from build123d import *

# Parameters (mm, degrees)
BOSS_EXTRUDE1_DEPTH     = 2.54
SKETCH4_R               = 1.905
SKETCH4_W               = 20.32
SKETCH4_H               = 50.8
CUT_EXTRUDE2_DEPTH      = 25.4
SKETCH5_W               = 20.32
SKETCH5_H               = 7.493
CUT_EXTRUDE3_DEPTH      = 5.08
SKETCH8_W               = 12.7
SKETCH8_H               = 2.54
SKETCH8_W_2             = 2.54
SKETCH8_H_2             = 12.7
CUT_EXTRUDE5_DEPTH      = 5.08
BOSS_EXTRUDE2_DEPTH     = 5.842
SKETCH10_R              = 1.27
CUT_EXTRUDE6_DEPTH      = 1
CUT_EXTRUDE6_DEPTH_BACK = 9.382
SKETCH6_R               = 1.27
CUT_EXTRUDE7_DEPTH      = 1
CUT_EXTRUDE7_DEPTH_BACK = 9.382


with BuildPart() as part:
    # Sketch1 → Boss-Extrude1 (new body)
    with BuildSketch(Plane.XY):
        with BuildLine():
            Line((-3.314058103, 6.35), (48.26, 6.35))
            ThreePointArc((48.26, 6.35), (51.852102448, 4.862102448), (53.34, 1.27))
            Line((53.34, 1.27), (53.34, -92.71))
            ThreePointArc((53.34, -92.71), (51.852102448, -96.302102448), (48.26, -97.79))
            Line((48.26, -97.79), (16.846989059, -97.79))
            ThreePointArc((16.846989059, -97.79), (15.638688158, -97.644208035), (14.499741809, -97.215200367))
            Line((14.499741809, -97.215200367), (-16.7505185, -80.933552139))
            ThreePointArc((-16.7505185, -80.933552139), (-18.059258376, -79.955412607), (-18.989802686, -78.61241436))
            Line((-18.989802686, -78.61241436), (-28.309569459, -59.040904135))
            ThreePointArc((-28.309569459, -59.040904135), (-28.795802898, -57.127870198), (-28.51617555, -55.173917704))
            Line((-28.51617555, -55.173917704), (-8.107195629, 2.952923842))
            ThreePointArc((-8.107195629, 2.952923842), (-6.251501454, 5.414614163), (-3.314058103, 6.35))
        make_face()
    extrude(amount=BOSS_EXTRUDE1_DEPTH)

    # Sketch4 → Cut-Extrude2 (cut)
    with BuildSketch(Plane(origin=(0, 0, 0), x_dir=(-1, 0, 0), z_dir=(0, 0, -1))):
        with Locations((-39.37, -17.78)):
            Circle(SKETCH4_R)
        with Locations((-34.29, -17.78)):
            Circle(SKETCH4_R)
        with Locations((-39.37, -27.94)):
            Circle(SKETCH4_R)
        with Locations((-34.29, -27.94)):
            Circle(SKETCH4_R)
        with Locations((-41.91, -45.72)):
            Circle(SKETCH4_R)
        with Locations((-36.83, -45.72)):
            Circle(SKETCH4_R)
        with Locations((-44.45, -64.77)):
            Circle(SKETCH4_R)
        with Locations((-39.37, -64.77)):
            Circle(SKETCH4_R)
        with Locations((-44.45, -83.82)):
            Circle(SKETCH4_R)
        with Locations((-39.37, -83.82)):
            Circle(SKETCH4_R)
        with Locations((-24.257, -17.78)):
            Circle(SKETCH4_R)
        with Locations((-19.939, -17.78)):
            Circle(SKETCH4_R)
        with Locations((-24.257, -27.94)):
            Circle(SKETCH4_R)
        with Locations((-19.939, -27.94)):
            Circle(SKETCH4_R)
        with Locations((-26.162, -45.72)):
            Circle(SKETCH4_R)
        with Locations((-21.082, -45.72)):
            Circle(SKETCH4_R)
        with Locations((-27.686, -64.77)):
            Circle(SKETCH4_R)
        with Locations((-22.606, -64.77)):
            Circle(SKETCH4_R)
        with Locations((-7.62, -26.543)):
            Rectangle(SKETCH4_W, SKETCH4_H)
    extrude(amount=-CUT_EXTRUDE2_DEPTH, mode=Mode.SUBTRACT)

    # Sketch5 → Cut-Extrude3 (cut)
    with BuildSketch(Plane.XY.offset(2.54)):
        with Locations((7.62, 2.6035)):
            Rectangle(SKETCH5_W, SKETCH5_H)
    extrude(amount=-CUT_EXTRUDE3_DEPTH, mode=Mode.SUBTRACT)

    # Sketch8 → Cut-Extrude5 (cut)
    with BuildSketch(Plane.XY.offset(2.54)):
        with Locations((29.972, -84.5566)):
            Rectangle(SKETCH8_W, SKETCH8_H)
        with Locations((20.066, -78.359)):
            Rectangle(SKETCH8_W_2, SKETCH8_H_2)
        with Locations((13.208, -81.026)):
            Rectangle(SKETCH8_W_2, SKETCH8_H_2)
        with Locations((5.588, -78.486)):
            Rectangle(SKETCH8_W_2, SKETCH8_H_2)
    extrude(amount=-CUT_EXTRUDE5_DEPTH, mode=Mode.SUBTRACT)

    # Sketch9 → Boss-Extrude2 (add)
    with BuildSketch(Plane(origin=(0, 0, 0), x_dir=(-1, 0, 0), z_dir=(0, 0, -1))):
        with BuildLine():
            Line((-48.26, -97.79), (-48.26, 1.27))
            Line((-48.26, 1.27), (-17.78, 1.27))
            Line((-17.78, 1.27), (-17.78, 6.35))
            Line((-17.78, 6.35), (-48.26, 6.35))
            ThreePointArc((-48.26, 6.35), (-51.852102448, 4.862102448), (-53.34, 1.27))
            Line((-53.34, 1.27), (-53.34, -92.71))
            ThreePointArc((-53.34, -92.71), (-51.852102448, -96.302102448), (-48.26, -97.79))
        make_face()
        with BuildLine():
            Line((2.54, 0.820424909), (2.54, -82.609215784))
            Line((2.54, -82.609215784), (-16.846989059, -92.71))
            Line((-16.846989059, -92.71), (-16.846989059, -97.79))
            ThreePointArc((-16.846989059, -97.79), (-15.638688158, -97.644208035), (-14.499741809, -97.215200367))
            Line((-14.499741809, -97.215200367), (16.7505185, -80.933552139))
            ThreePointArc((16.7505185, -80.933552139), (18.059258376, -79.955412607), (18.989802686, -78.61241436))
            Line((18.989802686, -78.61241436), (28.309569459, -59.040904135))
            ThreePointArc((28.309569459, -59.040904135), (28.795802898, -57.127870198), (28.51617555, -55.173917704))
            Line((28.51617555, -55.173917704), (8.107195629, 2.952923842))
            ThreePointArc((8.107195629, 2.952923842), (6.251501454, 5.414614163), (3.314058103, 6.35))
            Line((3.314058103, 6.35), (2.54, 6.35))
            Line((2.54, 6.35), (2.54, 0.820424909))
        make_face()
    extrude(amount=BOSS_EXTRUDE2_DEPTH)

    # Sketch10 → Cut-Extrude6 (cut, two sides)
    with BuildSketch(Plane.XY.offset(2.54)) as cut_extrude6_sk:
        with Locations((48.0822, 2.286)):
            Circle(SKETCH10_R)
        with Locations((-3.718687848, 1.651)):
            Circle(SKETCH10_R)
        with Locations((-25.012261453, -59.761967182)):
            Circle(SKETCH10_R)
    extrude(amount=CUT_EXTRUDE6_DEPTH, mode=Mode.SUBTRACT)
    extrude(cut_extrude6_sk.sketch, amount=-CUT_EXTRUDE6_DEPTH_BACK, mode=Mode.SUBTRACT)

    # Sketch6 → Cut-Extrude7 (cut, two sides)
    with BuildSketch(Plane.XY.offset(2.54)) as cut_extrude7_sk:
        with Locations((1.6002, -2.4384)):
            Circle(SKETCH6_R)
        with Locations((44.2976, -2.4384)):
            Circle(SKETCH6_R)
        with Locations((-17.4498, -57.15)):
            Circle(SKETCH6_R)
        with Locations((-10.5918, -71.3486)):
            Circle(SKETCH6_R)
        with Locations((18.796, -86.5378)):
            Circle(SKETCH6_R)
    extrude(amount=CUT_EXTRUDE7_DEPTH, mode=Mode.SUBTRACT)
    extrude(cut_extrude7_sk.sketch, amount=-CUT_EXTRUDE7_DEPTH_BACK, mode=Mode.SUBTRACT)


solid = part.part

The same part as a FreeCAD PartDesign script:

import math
import FreeCAD as App
import Part
import Sketcher
from FreeCAD import Vector
Q = App.Units.Quantity

doc = App.newDocument("Part")
body = doc.addObject("PartDesign::Body", "Body")

sketch1 = body.newObject("Sketcher::SketchObject", "Sketch")
sketch1.AttachmentSupport = (doc.getObject("XY_Plane"), [""])
sketch1.MapMode = "FlatFace"
sketch1.addGeometry(Part.LineSegment(Vector(48.26, 6.35, 0), Vector(-3.314058, 6.35, 0)), False)
sketch1.addGeometry(Part.ArcOfCircle(Part.Circle(Vector(-3.314058, 1.27, 0), Vector(0, 0, 1), 5.08), math.radians(90), math.radians(160.653259)), False)
sketch1.addGeometry(Part.LineSegment(Vector(-8.107196, 2.952924, 0), Vector(-28.516176, -55.173918, 0)), False)
sketch1.addGeometry(Part.ArcOfCircle(Part.Circle(Vector(-23.723038, -56.856842, 0), Vector(0, 0, 1), 5.08), math.radians(160.653259), math.radians(205.463345)), False)
sketch1.addGeometry(Part.LineSegment(Vector(-28.309569, -59.040904, 0), Vector(-18.989803, -78.612414, 0)), False)
sketch1.addGeometry(Part.ArcOfCircle(Part.Circle(Vector(-14.403271, -76.428352, 0), Vector(0, 0, 1), 5.08), math.radians(-154.536655), math.radians(-117.519892)), False)
sketch1.addGeometry(Part.LineSegment(Vector(-16.750518, -80.933552, 0), Vector(14.499742, -97.2152, 0)), False)
sketch1.addGeometry(Part.ArcOfCircle(Part.Circle(Vector(16.846989, -92.71, 0), Vector(0, 0, 1), 5.08), math.radians(-117.519892), math.radians(-90)), False)
sketch1.addGeometry(Part.LineSegment(Vector(16.846989, -97.79, 0), Vector(48.26, -97.79, 0)), False)
sketch1.addGeometry(Part.ArcOfCircle(Part.Circle(Vector(48.26, -92.71, 0), Vector(0, 0, 1), 5.08), math.radians(-90), math.radians(0)), False)
sketch1.addGeometry(Part.LineSegment(Vector(53.34, -92.71, 0), Vector(53.34, 1.27, 0)), False)
sketch1.addGeometry(Part.ArcOfCircle(Part.Circle(Vector(48.26, 1.27, 0), Vector(0, 0, 1), 5.08), math.radians(0), math.radians(90)), False)
sketch1.addConstraint(Sketcher.Constraint("Tangent", 0, 2, 1, 1))
sketch1.addConstraint(Sketcher.Constraint("Tangent", 1, 2, 2, 1))
sketch1.addConstraint(Sketcher.Constraint("Tangent", 2, 2, 3, 1))
sketch1.addConstraint(Sketcher.Constraint("Tangent", 3, 2, 4, 1))
sketch1.addConstraint(Sketcher.Constraint("Tangent", 4, 2, 5, 1))
sketch1.addConstraint(Sketcher.Constraint("Tangent", 5, 2, 6, 1))
sketch1.addConstraint(Sketcher.Constraint("Tangent", 6, 2, 7, 1))
sketch1.addConstraint(Sketcher.Constraint("Tangent", 7, 2, 8, 1))
sketch1.addConstraint(Sketcher.Constraint("Tangent", 8, 2, 9, 1))
sketch1.addConstraint(Sketcher.Constraint("Tangent", 9, 2, 10, 1))
sketch1.addConstraint(Sketcher.Constraint("Tangent", 10, 2, 11, 1))
sketch1.addConstraint(Sketcher.Constraint("Tangent", 11, 2, 0, 1))
sketch1.addConstraint(Sketcher.Constraint("Horizontal", 0))
sketch1.addConstraint(Sketcher.Constraint("Horizontal", 8))
sketch1.addConstraint(Sketcher.Constraint("Vertical", 10))
sketch1.addConstraint(Sketcher.Constraint("Equal", 1, 3))
sketch1.addConstraint(Sketcher.Constraint("Equal", 3, 5))
sketch1.addConstraint(Sketcher.Constraint("Equal", 5, 7))
sketch1.addConstraint(Sketcher.Constraint("Equal", 7, 9))
sketch1.addConstraint(Sketcher.Constraint("Equal", 9, 11))
sketch1.addConstraint(Sketcher.Constraint("Radius", 1, Q("0.2 in")))
sketch1.addConstraint(Sketcher.Constraint("DistanceY", 10, 1, 10, 2, Q("3.7 in")))
sketch1.addConstraint(Sketcher.Constraint("DistanceX", -1, 1, 9, 3, Q("1.9 in")))
sketch1.addConstraint(Sketcher.Constraint("DistanceY", -1, 1, 1, 3, Q("0.05 in")))
sketch1.addConstraint(Sketcher.Constraint("DistanceX", 0, 2, 0, 1, 51.574058))
sketch1.addConstraint(Sketcher.Constraint("DistanceX", 8, 1, 8, 2, 31.413011))
sketch1.addConstraint(Sketcher.Constraint("DistanceY", 6, 2, -1, 1, 97.2152))
sketch1.addConstraint(Sketcher.Constraint("DistanceX", 3, 2, 5, 3, 13.906298))
sketch1.addConstraint(Sketcher.Constraint("Distance", 2, 61.60565))
sketch1.addConstraint(Sketcher.Constraint("Distance", 6, 35.23735))
pad1 = body.newObject("PartDesign::Pad", "Pad")
pad1.Profile = sketch1
pad1.Length = Q("0.1 in")

sketch2 = body.newObject("Sketcher::SketchObject", "Sketch001")
sketch2.AttachmentSupport = (doc.getObject("XY_Plane"), [""])
sketch2.MapMode = "FlatFace"
sketch2.addGeometry(Part.Circle(Vector(39.37, -17.78, 0), Vector(0, 0, 1), 1.905), False)
sketch2.addGeometry(Part.Circle(Vector(34.29, -17.78, 0), Vector(0, 0, 1), 1.905), False)
sketch2.addGeometry(Part.Circle(Vector(39.37, -27.94, 0), Vector(0, 0, 1), 1.905), False)
sketch2.addGeometry(Part.Circle(Vector(34.29, -27.94, 0), Vector(0, 0, 1), 1.905), False)
sketch2.addGeometry(Part.Circle(Vector(41.91, -45.72, 0), Vector(0, 0, 1), 1.905), False)
sketch2.addGeometry(Part.Circle(Vector(36.83, -45.72, 0), Vector(0, 0, 1), 1.905), False)
sketch2.addGeometry(Part.Circle(Vector(44.45, -64.77, 0), Vector(0, 0, 1), 1.905), False)
sketch2.addGeometry(Part.Circle(Vector(39.37, -64.77, 0), Vector(0, 0, 1), 1.905), False)
sketch2.addGeometry(Part.Circle(Vector(44.45, -83.82, 0), Vector(0, 0, 1), 1.905), False)
sketch2.addGeometry(Part.Circle(Vector(39.37, -83.82, 0), Vector(0, 0, 1), 1.905), False)
sketch2.addGeometry(Part.Circle(Vector(24.257, -17.78, 0), Vector(0, 0, 1), 1.905), False)
sketch2.addGeometry(Part.Circle(Vector(19.939, -17.78, 0), Vector(0, 0, 1), 1.905), False)
sketch2.addGeometry(Part.Circle(Vector(24.257, -27.94, 0), Vector(0, 0, 1), 1.905), False)
sketch2.addGeometry(Part.Circle(Vector(19.939, -27.94, 0), Vector(0, 0, 1), 1.905), False)
sketch2.addGeometry(Part.Circle(Vector(26.162, -45.72, 0), Vector(0, 0, 1), 1.905), False)
sketch2.addGeometry(Part.Circle(Vector(21.082, -45.72, 0), Vector(0, 0, 1), 1.905), False)
sketch2.addGeometry(Part.Circle(Vector(27.686, -64.77, 0), Vector(0, 0, 1), 1.905), False)
sketch2.addGeometry(Part.Circle(Vector(22.606, -64.77, 0), Vector(0, 0, 1), 1.905), False)
sketch2.addGeometry(Part.LineSegment(Vector(17.78, -1.143, 0), Vector(17.78, -51.943, 0)), False)
sketch2.addGeometry(Part.LineSegment(Vector(17.78, -51.943, 0), Vector(-2.54, -51.943, 0)), False)
sketch2.addGeometry(Part.LineSegment(Vector(-2.54, -51.943, 0), Vector(-2.54, -1.143, 0)), False)
sketch2.addGeometry(Part.LineSegment(Vector(-2.54, -1.143, 0), Vector(17.78, -1.143, 0)), False)
sketch2.addConstraint(Sketcher.Constraint("Coincident", 18, 2, 19, 1))
sketch2.addConstraint(Sketcher.Constraint("Coincident", 19, 2, 20, 1))
sketch2.addConstraint(Sketcher.Constraint("Coincident", 20, 2, 21, 1))
sketch2.addConstraint(Sketcher.Constraint("Coincident", 21, 2, 18, 1))
sketch2.addConstraint(Sketcher.Constraint("Vertical", 18))
sketch2.addConstraint(Sketcher.Constraint("Horizontal", 19))
sketch2.addConstraint(Sketcher.Constraint("Vertical", 20))
sketch2.addConstraint(Sketcher.Constraint("Horizontal", 21))
sketch2.addConstraint(Sketcher.Constraint("Equal", 0, 1))
sketch2.addConstraint(Sketcher.Constraint("Equal", 1, 2))
sketch2.addConstraint(Sketcher.Constraint("Equal", 2, 3))
sketch2.addConstraint(Sketcher.Constraint("Equal", 3, 4))
sketch2.addConstraint(Sketcher.Constraint("Equal", 4, 5))
sketch2.addConstraint(Sketcher.Constraint("Equal", 5, 6))
sketch2.addConstraint(Sketcher.Constraint("Equal", 6, 7))
sketch2.addConstraint(Sketcher.Constraint("Equal", 7, 8))
sketch2.addConstraint(Sketcher.Constraint("Equal", 8, 9))
sketch2.addConstraint(Sketcher.Constraint("Equal", 9, 10))
sketch2.addConstraint(Sketcher.Constraint("Equal", 10, 11))
sketch2.addConstraint(Sketcher.Constraint("Equal", 11, 12))
sketch2.addConstraint(Sketcher.Constraint("Equal", 12, 13))
sketch2.addConstraint(Sketcher.Constraint("Equal", 13, 14))
sketch2.addConstraint(Sketcher.Constraint("Equal", 14, 15))
sketch2.addConstraint(Sketcher.Constraint("Equal", 15, 16))
sketch2.addConstraint(Sketcher.Constraint("Equal", 16, 17))
sketch2.addConstraint(Sketcher.Constraint("Horizontal", 0, 3, 1, 3))
sketch2.addConstraint(Sketcher.Constraint("Horizontal", 2, 3, 3, 3))
sketch2.addConstraint(Sketcher.Constraint("Horizontal", 4, 3, 5, 3))
sketch2.addConstraint(Sketcher.Constraint("Horizontal", 6, 3, 7, 3))
sketch2.addConstraint(Sketcher.Constraint("Horizontal", 8, 3, 9, 3))
sketch2.addConstraint(Sketcher.Constraint("Horizontal", 1, 3, 10, 3))
sketch2.addConstraint(Sketcher.Constraint("Horizontal", 10, 3, 11, 3))
sketch2.addConstraint(Sketcher.Constraint("Horizontal", 3, 3, 12, 3))
sketch2.addConstraint(Sketcher.Constraint("Horizontal", 12, 3, 13, 3))
sketch2.addConstraint(Sketcher.Constraint("Horizontal", 5, 3, 14, 3))
sketch2.addConstraint(Sketcher.Constraint("Horizontal", 14, 3, 15, 3))
sketch2.addConstraint(Sketcher.Constraint("Horizontal", 7, 3, 16, 3))
sketch2.addConstraint(Sketcher.Constraint("Horizontal", 16, 3, 17, 3))
sketch2.addConstraint(Sketcher.Constraint("Vertical", 0, 3, 2, 3))
sketch2.addConstraint(Sketcher.Constraint("Vertical", 1, 3, 3, 3))
sketch2.addConstraint(Sketcher.Constraint("Vertical", 2, 3, 7, 3))
sketch2.addConstraint(Sketcher.Constraint("Vertical", 6, 3, 8, 3))
sketch2.addConstraint(Sketcher.Constraint("Vertical", 7, 3, 9, 3))
sketch2.addConstraint(Sketcher.Constraint("Vertical", 10, 3, 12, 3))
sketch2.addConstraint(Sketcher.Constraint("Vertical", 11, 3, 13, 3))
sketch2.addConstraint(Sketcher.Constraint("Diameter", 0, Q("0.15 in")))
sketch2.addConstraint(Sketcher.Constraint("DistanceY", 18, 2, 18, 1, Q("2 in")))
sketch2.addConstraint(Sketcher.Constraint("DistanceX", 19, 2, 19, 1, Q("0.8 in")))
sketch2.addConstraint(Sketcher.Constraint("DistanceY", 0, 3, -1, 1, Q("0.7 in")))
sketch2.addConstraint(Sketcher.Constraint("DistanceY", 2, 3, -1, 1, Q("1.1 in")))
sketch2.addConstraint(Sketcher.Constraint("DistanceY", 4, 3, -1, 1, Q("1.8 in")))
sketch2.addConstraint(Sketcher.Constraint("DistanceY", 8, 3, -1, 1, Q("3.3 in")))
sketch2.addConstraint(Sketcher.Constraint("DistanceX", -1, 1, 18, 2, Q("0.7 in")))
sketch2.addConstraint(Sketcher.Constraint("DistanceX", 1, 3, 0, 3, Q("0.2 in")))
sketch2.addConstraint(Sketcher.Constraint("DistanceX", 2, 3, 4, 3, Q("0.1 in")))
sketch2.addConstraint(Sketcher.Constraint("DistanceX", 5, 3, 4, 3, Q("0.2 in")))
sketch2.addConstraint(Sketcher.Constraint("DistanceX", 4, 3, 6, 3, Q("0.1 in")))
sketch2.addConstraint(Sketcher.Constraint("DistanceX", 15, 3, 14, 3, Q("0.2 in")))
sketch2.addConstraint(Sketcher.Constraint("DistanceX", 17, 3, 16, 3, Q("0.2 in")))
sketch2.addConstraint(Sketcher.Constraint("DistanceX", -1, 1, 0, 3, Q("1.55 in")))
sketch2.addConstraint(Sketcher.Constraint("DistanceY", 6, 3, -1, 1, Q("2.55 in")))
sketch2.addConstraint(Sketcher.Constraint("DistanceX", -1, 1, 14, 3, Q("1.03 in")))
sketch2.addConstraint(Sketcher.Constraint("DistanceX", -1, 1, 16, 3, Q("1.09 in")))
sketch2.addConstraint(Sketcher.Constraint("DistanceX", 11, 3, 10, 3, Q("0.17 in")))
sketch2.addConstraint(Sketcher.Constraint("DistanceX", -1, 1, 10, 3, Q("0.955 in")))
sketch2.addConstraint(Sketcher.Constraint("DistanceY", 18, 2, -1, 1, Q("2.045 in")))
pocket1 = body.newObject("PartDesign::Pocket", "Pocket")
pocket1.Profile = sketch2
pocket1.Length = Q("1 in")
pocket1.Reversed = True

sketch3 = body.newObject("Sketcher::SketchObject", "Sketch002")
sketch3.AttachmentSupport = (doc.getObject("XY_Plane"), [""])
sketch3.MapMode = "FlatFace"
sketch3.AttachmentOffset = App.Placement(Vector(0, 0, 0.1 * 25.4), App.Rotation())
sketch3.addGeometry(Part.LineSegment(Vector(-2.54, 6.35, 0), Vector(-2.54, -1.143, 0)), False)
sketch3.addGeometry(Part.LineSegment(Vector(-2.54, -1.143, 0), Vector(17.78, -1.143, 0)), False)
sketch3.addGeometry(Part.LineSegment(Vector(17.78, -1.143, 0), Vector(17.78, 6.35, 0)), False)
sketch3.addGeometry(Part.LineSegment(Vector(17.78, 6.35, 0), Vector(-2.54, 6.35, 0)), False)
sketch3.addConstraint(Sketcher.Constraint("Coincident", 0, 2, 1, 1))
sketch3.addConstraint(Sketcher.Constraint("Coincident", 1, 2, 2, 1))
sketch3.addConstraint(Sketcher.Constraint("Coincident", 2, 2, 3, 1))
sketch3.addConstraint(Sketcher.Constraint("Coincident", 3, 2, 0, 1))
sketch3.addConstraint(Sketcher.Constraint("Vertical", 0))
sketch3.addConstraint(Sketcher.Constraint("Horizontal", 1))
sketch3.addConstraint(Sketcher.Constraint("Vertical", 2))
sketch3.addConstraint(Sketcher.Constraint("Horizontal", 3))
sketch3.addConstraint(Sketcher.Constraint("DistanceX", 1, 1, 1, 2, Q("0.8 in")))
sketch3.addConstraint(Sketcher.Constraint("DistanceX", 0, 2, -1, 1, Q("0.1 in")))
sketch3.addConstraint(Sketcher.Constraint("DistanceY", 0, 2, 0, 1, Q("0.295 in")))
sketch3.addConstraint(Sketcher.Constraint("DistanceY", -1, 1, 2, 2, Q("0.25 in")))
pocket2 = body.newObject("PartDesign::Pocket", "Pocket001")
pocket2.Profile = sketch3
pocket2.Length = Q("0.2 in")

sketch4 = body.newObject("Sketcher::SketchObject", "Sketch003")
sketch4.AttachmentSupport = (doc.getObject("XY_Plane"), [""])
sketch4.MapMode = "FlatFace"
sketch4.AttachmentOffset = App.Placement(Vector(0, 0, 0.1 * 25.4), App.Rotation())
sketch4.addGeometry(Part.LineSegment(Vector(23.622, -83.2866, 0), Vector(23.622, -85.8266, 0)), False)
sketch4.addGeometry(Part.LineSegment(Vector(23.622, -85.8266, 0), Vector(36.322, -85.8266, 0)), False)
sketch4.addGeometry(Part.LineSegment(Vector(36.322, -85.8266, 0), Vector(36.322, -83.2866, 0)), False)
sketch4.addGeometry(Part.LineSegment(Vector(36.322, -83.2866, 0), Vector(23.622, -83.2866, 0)), False)
sketch4.addGeometry(Part.LineSegment(Vector(18.796, -72.009, 0), Vector(18.796, -84.709, 0)), False)
sketch4.addGeometry(Part.LineSegment(Vector(18.796, -84.709, 0), Vector(21.336, -84.709, 0)), False)
sketch4.addGeometry(Part.LineSegment(Vector(21.336, -84.709, 0), Vector(21.336, -72.009, 0)), False)
sketch4.addGeometry(Part.LineSegment(Vector(21.336, -72.009, 0), Vector(18.796, -72.009, 0)), False)
sketch4.addGeometry(Part.LineSegment(Vector(11.938, -74.676, 0), Vector(11.938, -87.376, 0)), False)
sketch4.addGeometry(Part.LineSegment(Vector(11.938, -87.376, 0), Vector(14.478, -87.376, 0)), False)
sketch4.addGeometry(Part.LineSegment(Vector(14.478, -87.376, 0), Vector(14.478, -74.676, 0)), False)
sketch4.addGeometry(Part.LineSegment(Vector(14.478, -74.676, 0), Vector(11.938, -74.676, 0)), False)
sketch4.addGeometry(Part.LineSegment(Vector(4.318, -72.136, 0), Vector(4.318, -84.836, 0)), False)
sketch4.addGeometry(Part.LineSegment(Vector(4.318, -84.836, 0), Vector(6.858, -84.836, 0)), False)
sketch4.addGeometry(Part.LineSegment(Vector(6.858, -84.836, 0), Vector(6.858, -72.136, 0)), False)
sketch4.addGeometry(Part.LineSegment(Vector(6.858, -72.136, 0), Vector(4.318, -72.136, 0)), False)
sketch4.addConstraint(Sketcher.Constraint("Coincident", 0, 2, 1, 1))
sketch4.addConstraint(Sketcher.Constraint("Coincident", 1, 2, 2, 1))
sketch4.addConstraint(Sketcher.Constraint("Coincident", 2, 2, 3, 1))
sketch4.addConstraint(Sketcher.Constraint("Coincident", 3, 2, 0, 1))
sketch4.addConstraint(Sketcher.Constraint("Coincident", 4, 2, 5, 1))
sketch4.addConstraint(Sketcher.Constraint("Coincident", 5, 2, 6, 1))
sketch4.addConstraint(Sketcher.Constraint("Coincident", 6, 2, 7, 1))
sketch4.addConstraint(Sketcher.Constraint("Coincident", 7, 2, 4, 1))
sketch4.addConstraint(Sketcher.Constraint("Coincident", 8, 2, 9, 1))
sketch4.addConstraint(Sketcher.Constraint("Coincident", 9, 2, 10, 1))
sketch4.addConstraint(Sketcher.Constraint("Coincident", 10, 2, 11, 1))
sketch4.addConstraint(Sketcher.Constraint("Coincident", 11, 2, 8, 1))
sketch4.addConstraint(Sketcher.Constraint("Coincident", 12, 2, 13, 1))
sketch4.addConstraint(Sketcher.Constraint("Coincident", 13, 2, 14, 1))
sketch4.addConstraint(Sketcher.Constraint("Coincident", 14, 2, 15, 1))
sketch4.addConstraint(Sketcher.Constraint("Coincident", 15, 2, 12, 1))
sketch4.addConstraint(Sketcher.Constraint("Vertical", 0))
sketch4.addConstraint(Sketcher.Constraint("Horizontal", 1))
sketch4.addConstraint(Sketcher.Constraint("Vertical", 2))
sketch4.addConstraint(Sketcher.Constraint("Horizontal", 3))
sketch4.addConstraint(Sketcher.Constraint("Vertical", 4))
sketch4.addConstraint(Sketcher.Constraint("Horizontal", 5))
sketch4.addConstraint(Sketcher.Constraint("Vertical", 6))
sketch4.addConstraint(Sketcher.Constraint("Horizontal", 7))
sketch4.addConstraint(Sketcher.Constraint("Vertical", 8))
sketch4.addConstraint(Sketcher.Constraint("Horizontal", 9))
sketch4.addConstraint(Sketcher.Constraint("Vertical", 10))
sketch4.addConstraint(Sketcher.Constraint("Horizontal", 11))
sketch4.addConstraint(Sketcher.Constraint("Vertical", 12))
sketch4.addConstraint(Sketcher.Constraint("Horizontal", 13))
sketch4.addConstraint(Sketcher.Constraint("Vertical", 14))
sketch4.addConstraint(Sketcher.Constraint("Horizontal", 15))
sketch4.addConstraint(Sketcher.Constraint("Equal", 7, 9))
sketch4.addConstraint(Sketcher.Constraint("Equal", 11, 13))
sketch4.addConstraint(Sketcher.Constraint("Equal", 15, 0))
sketch4.addConstraint(Sketcher.Constraint("Equal", 3, 4))
sketch4.addConstraint(Sketcher.Constraint("Equal", 6, 8))
sketch4.addConstraint(Sketcher.Constraint("Equal", 10, 12))
sketch4.addConstraint(Sketcher.Constraint("DistanceX", 1, 1, 1, 2, Q("0.5 in")))
sketch4.addConstraint(Sketcher.Constraint("DistanceX", 5, 1, 5, 2, Q("0.1 in")))
sketch4.addConstraint(Sketcher.Constraint("DistanceX", 12, 2, 8, 2, Q("0.3 in")))
sketch4.addConstraint(Sketcher.Constraint("DistanceY", 8, 2, 12, 2, Q("0.1 in")))
sketch4.addConstraint(Sketcher.Constraint("DistanceX", -1, 1, 0, 2, Q("0.93 in")))
sketch4.addConstraint(Sketcher.Constraint("DistanceX", -1, 1, 4, 2, Q("0.74 in")))
sketch4.addConstraint(Sketcher.Constraint("DistanceX", -1, 1, 8, 2, Q("0.47 in")))
sketch4.addConstraint(Sketcher.Constraint("DistanceY", 8, 2, -1, 1, Q("3.44 in")))
sketch4.addConstraint(Sketcher.Constraint("DistanceY", 0, 2, -1, 1, Q("3.379 in")))
sketch4.addConstraint(Sketcher.Constraint("DistanceY", 4, 2, -1, 1, Q("3.335 in")))
pocket3 = body.newObject("PartDesign::Pocket", "Pocket002")
pocket3.Profile = sketch4
pocket3.Length = Q("0.2 in")

sketch5 = body.newObject("Sketcher::SketchObject", "Sketch004")
sketch5.AttachmentSupport = (doc.getObject("XY_Plane"), [""])
sketch5.MapMode = "FlatFace"
sketch5.addGeometry(Part.LineSegment(Vector(48.26, -97.79, 0), Vector(48.26, 1.27, 0)), False)
sketch5.addGeometry(Part.LineSegment(Vector(48.26, 1.27, 0), Vector(17.78, 1.27, 0)), False)
sketch5.addGeometry(Part.LineSegment(Vector(17.78, 1.27, 0), Vector(17.78, 6.35, 0)), False)
sketch5.addGeometry(Part.LineSegment(Vector(17.78, 6.35, 0), Vector(48.26, 6.35, 0)), False)
sketch5.addGeometry(Part.ArcOfCircle(Part.Circle(Vector(48.26, 1.27, 0), Vector(0, 0, 1), 5.08), math.radians(0), math.radians(90)), False)
sketch5.addGeometry(Part.LineSegment(Vector(53.34, 1.27, 0), Vector(53.34, -92.71, 0)), False)
sketch5.addGeometry(Part.ArcOfCircle(Part.Circle(Vector(48.26, -92.71, 0), Vector(0, 0, 1), 5.08), math.radians(-90), math.radians(0)), False)
sketch5.addGeometry(Part.LineSegment(Vector(-2.54, -82.609216, 0), Vector(16.846989, -92.71, 0)), False)
sketch5.addGeometry(Part.LineSegment(Vector(16.846989, -92.71, 0), Vector(16.846989, -97.79, 0)), False)
sketch5.addGeometry(Part.ArcOfCircle(Part.Circle(Vector(16.846989, -92.71, 0), Vector(0, 0, 1), 5.08), math.radians(-117.519892), math.radians(-90)), False)
sketch5.addGeometry(Part.LineSegment(Vector(14.499742, -97.2152, 0), Vector(-16.750518, -80.933552, 0)), False)
sketch5.addGeometry(Part.ArcOfCircle(Part.Circle(Vector(-14.403271, -76.428352, 0), Vector(0, 0, 1), 5.08), math.radians(-154.536655), math.radians(-117.519892)), False)
sketch5.addGeometry(Part.LineSegment(Vector(-18.989803, -78.612414, 0), Vector(-28.309569, -59.040904, 0)), False)
sketch5.addGeometry(Part.ArcOfCircle(Part.Circle(Vector(-23.723038, -56.856842, 0), Vector(0, 0, 1), 5.08), math.radians(160.653259), math.radians(205.463345)), False)
sketch5.addGeometry(Part.LineSegment(Vector(-28.516176, -55.173918, 0), Vector(-8.107196, 2.952924, 0)), False)
sketch5.addGeometry(Part.ArcOfCircle(Part.Circle(Vector(-3.314058, 1.27, 0), Vector(0, 0, 1), 5.08), math.radians(90), math.radians(160.653259)), False)
sketch5.addGeometry(Part.LineSegment(Vector(-3.314058, 6.35, 0), Vector(-2.54, 6.35, 0)), False)
sketch5.addGeometry(Part.LineSegment(Vector(-2.54, 6.35, 0), Vector(-2.54, -82.609216, 0)), False)
sketch5.addConstraint(Sketcher.Constraint("Coincident", 0, 2, 1, 1))
sketch5.addConstraint(Sketcher.Constraint("Coincident", 1, 2, 2, 1))
sketch5.addConstraint(Sketcher.Constraint("Coincident", 2, 2, 3, 1))
sketch5.addConstraint(Sketcher.Constraint("Tangent", 3, 2, 4, 2))
sketch5.addConstraint(Sketcher.Constraint("Tangent", 4, 1, 5, 1))
sketch5.addConstraint(Sketcher.Constraint("Tangent", 5, 2, 6, 2))
sketch5.addConstraint(Sketcher.Constraint("Coincident", 6, 1, 0, 1))
sketch5.addConstraint(Sketcher.Constraint("Coincident", 7, 2, 8, 1))
sketch5.addConstraint(Sketcher.Constraint("Coincident", 8, 2, 9, 2))
sketch5.addConstraint(Sketcher.Constraint("Tangent", 9, 1, 10, 1))
sketch5.addConstraint(Sketcher.Constraint("Tangent", 10, 2, 11, 2))
sketch5.addConstraint(Sketcher.Constraint("Tangent", 11, 1, 12, 1))
sketch5.addConstraint(Sketcher.Constraint("Tangent", 12, 2, 13, 2))
sketch5.addConstraint(Sketcher.Constraint("Tangent", 13, 1, 14, 1))
sketch5.addConstraint(Sketcher.Constraint("Tangent", 14, 2, 15, 2))
sketch5.addConstraint(Sketcher.Constraint("Tangent", 15, 1, 16, 1))
sketch5.addConstraint(Sketcher.Constraint("Coincident", 16, 2, 17, 1))
sketch5.addConstraint(Sketcher.Constraint("Coincident", 17, 2, 7, 1))
sketch5.addConstraint(Sketcher.Constraint("Vertical", 0))
sketch5.addConstraint(Sketcher.Constraint("Horizontal", 1))
sketch5.addConstraint(Sketcher.Constraint("Vertical", 2))
sketch5.addConstraint(Sketcher.Constraint("Horizontal", 3))
sketch5.addConstraint(Sketcher.Constraint("Vertical", 5))
sketch5.addConstraint(Sketcher.Constraint("Vertical", 8))
sketch5.addConstraint(Sketcher.Constraint("Horizontal", 16))
sketch5.addConstraint(Sketcher.Constraint("Vertical", 17))
sketch5.addConstraint(Sketcher.Constraint("Coincident", 0, 2, 4, 3))
sketch5.addConstraint(Sketcher.Constraint("Coincident", 7, 2, 9, 3))
sketch5.addConstraint(Sketcher.Constraint("Equal", 4, 6))
sketch5.addConstraint(Sketcher.Constraint("Equal", 6, 9))
sketch5.addConstraint(Sketcher.Constraint("Equal", 9, 11))
sketch5.addConstraint(Sketcher.Constraint("Equal", 11, 13))
sketch5.addConstraint(Sketcher.Constraint("Equal", 13, 15))
sketch5.addConstraint(Sketcher.Constraint("Parallel", 7, 10))
sketch5.addConstraint(Sketcher.Constraint("Horizontal", 6, 3, 9, 3))
sketch5.addConstraint(Sketcher.Constraint("Horizontal", 4, 3, 15, 3))
sketch5.addConstraint(Sketcher.Constraint("Radius", 4, Q("0.2 in")))
sketch5.addConstraint(Sketcher.Constraint("DistanceX", 1, 2, 1, 1, Q("1.2 in")))
sketch5.addConstraint(Sketcher.Constraint("DistanceY", 0, 1, 0, 2, Q("3.9 in")))
sketch5.addConstraint(Sketcher.Constraint("DistanceX", -1, 1, 4, 3, Q("1.9 in")))
sketch5.addConstraint(Sketcher.Constraint("DistanceX", 16, 2, -1, 1, Q("0.1 in")))
sketch5.addConstraint(Sketcher.Constraint("DistanceY", -1, 1, 4, 3, Q("0.05 in")))
sketch5.addConstraint(Sketcher.Constraint("DistanceX", 16, 1, 16, 2, 0.774058))
sketch5.addConstraint(Sketcher.Constraint("DistanceY", 9, 1, -1, 1, 97.2152))
sketch5.addConstraint(Sketcher.Constraint("DistanceX", 12, 2, 11, 3, 13.906298))
sketch5.addConstraint(Sketcher.Constraint("DistanceY", 17, 2, 11, 1, 3.996801))
sketch5.addConstraint(Sketcher.Constraint("Distance", 10, 35.23735))
sketch5.addConstraint(Sketcher.Constraint("Distance", 14, 61.60565))
pad2 = body.newObject("PartDesign::Pad", "Pad001")
pad2.Profile = sketch5
pad2.Length = Q("0.23 in")
pad2.Reversed = True

sketch6 = body.newObject("Sketcher::SketchObject", "Sketch005")
sketch6.AttachmentSupport = (doc.getObject("XY_Plane"), [""])
sketch6.MapMode = "FlatFace"
sketch6.AttachmentOffset = App.Placement(Vector(0, 0, 0.1 * 25.4), App.Rotation())
sketch6.addGeometry(Part.Circle(Vector(48.0822, 2.286, 0), Vector(0, 0, 1), 1.27), False)
sketch6.addGeometry(Part.Circle(Vector(-3.718688, 1.651, 0), Vector(0, 0, 1), 1.27), False)
sketch6.addGeometry(Part.Circle(Vector(-25.012261, -59.761967, 0), Vector(0, 0, 1), 1.27), False)
sketch6.addConstraint(Sketcher.Constraint("Equal", 0, 1))
sketch6.addConstraint(Sketcher.Constraint("Equal", 1, 2))
sketch6.addConstraint(Sketcher.Constraint("Diameter", 0, Q("0.1 in")))
sketch6.addConstraint(Sketcher.Constraint("DistanceY", -1, 1, 0, 3, Q("0.09 in")))
sketch6.addConstraint(Sketcher.Constraint("DistanceX", -1, 1, 0, 3, Q("1.893 in")))
sketch6.addConstraint(Sketcher.Constraint("DistanceY", -1, 1, 1, 3, Q("0.065 in")))
sketch6.addConstraint(Sketcher.Constraint("DistanceX", 2, 3, -1, 1, 25.012261))
sketch6.addConstraint(Sketcher.Constraint("DistanceX", 1, 3, -1, 1, 3.718688))
sketch6.addConstraint(Sketcher.Constraint("DistanceY", 2, 3, -1, 1, 59.761967))
pocket4 = body.newObject("PartDesign::Pocket", "Pocket003")
pocket4.Profile = sketch6
pocket4.Type = "ThroughAll"
pocket4.Midplane = True

sketch7 = body.newObject("Sketcher::SketchObject", "Sketch006")
sketch7.AttachmentSupport = (doc.getObject("XY_Plane"), [""])
sketch7.MapMode = "FlatFace"
sketch7.AttachmentOffset = App.Placement(Vector(0, 0, 0.1 * 25.4), App.Rotation())
sketch7.addGeometry(Part.Circle(Vector(1.6002, -2.4384, 0), Vector(0, 0, 1), 1.27), False)
sketch7.addGeometry(Part.Circle(Vector(44.2976, -2.4384, 0), Vector(0, 0, 1), 1.27), False)
sketch7.addGeometry(Part.Circle(Vector(-17.4498, -57.15, 0), Vector(0, 0, 1), 1.27), False)
sketch7.addGeometry(Part.Circle(Vector(-10.5918, -71.3486, 0), Vector(0, 0, 1), 1.27), False)
sketch7.addGeometry(Part.Circle(Vector(18.796, -86.5378, 0), Vector(0, 0, 1), 1.27), False)
sketch7.addConstraint(Sketcher.Constraint("Equal", 0, 1))
sketch7.addConstraint(Sketcher.Constraint("Equal", 1, 2))
sketch7.addConstraint(Sketcher.Constraint("Equal", 2, 3))
sketch7.addConstraint(Sketcher.Constraint("Equal", 3, 4))
sketch7.addConstraint(Sketcher.Constraint("Horizontal", 0, 3, 1, 3))
sketch7.addConstraint(Sketcher.Constraint("Diameter", 0, Q("0.1 in")))
sketch7.addConstraint(Sketcher.Constraint("DistanceY", 2, 3, -1, 1, Q("2.25 in")))
sketch7.addConstraint(Sketcher.Constraint("DistanceX", -1, 1, 4, 3, Q("0.74 in")))
sketch7.addConstraint(Sketcher.Constraint("DistanceX", 2, 3, 0, 3, Q("0.75 in")))
sketch7.addConstraint(Sketcher.Constraint("DistanceX", 2, 3, 3, 3, Q("0.27 in")))
sketch7.addConstraint(Sketcher.Constraint("DistanceX", -1, 1, 0, 3, Q("0.063 in")))
sketch7.addConstraint(Sketcher.Constraint("DistanceY", 0, 3, -1, 1, Q("0.096 in")))
sketch7.addConstraint(Sketcher.Constraint("DistanceX", -1, 1, 1, 3, Q("1.744 in")))
sketch7.addConstraint(Sketcher.Constraint("DistanceY", 3, 3, -1, 1, Q("2.809 in")))
sketch7.addConstraint(Sketcher.Constraint("DistanceY", 4, 3, -1, 1, Q("3.407 in")))
pocket5 = body.newObject("PartDesign::Pocket", "Pocket004")
pocket5.Profile = sketch7
pocket5.Type = "ThroughAll"
pocket5.Midplane = True

doc.recompute()
